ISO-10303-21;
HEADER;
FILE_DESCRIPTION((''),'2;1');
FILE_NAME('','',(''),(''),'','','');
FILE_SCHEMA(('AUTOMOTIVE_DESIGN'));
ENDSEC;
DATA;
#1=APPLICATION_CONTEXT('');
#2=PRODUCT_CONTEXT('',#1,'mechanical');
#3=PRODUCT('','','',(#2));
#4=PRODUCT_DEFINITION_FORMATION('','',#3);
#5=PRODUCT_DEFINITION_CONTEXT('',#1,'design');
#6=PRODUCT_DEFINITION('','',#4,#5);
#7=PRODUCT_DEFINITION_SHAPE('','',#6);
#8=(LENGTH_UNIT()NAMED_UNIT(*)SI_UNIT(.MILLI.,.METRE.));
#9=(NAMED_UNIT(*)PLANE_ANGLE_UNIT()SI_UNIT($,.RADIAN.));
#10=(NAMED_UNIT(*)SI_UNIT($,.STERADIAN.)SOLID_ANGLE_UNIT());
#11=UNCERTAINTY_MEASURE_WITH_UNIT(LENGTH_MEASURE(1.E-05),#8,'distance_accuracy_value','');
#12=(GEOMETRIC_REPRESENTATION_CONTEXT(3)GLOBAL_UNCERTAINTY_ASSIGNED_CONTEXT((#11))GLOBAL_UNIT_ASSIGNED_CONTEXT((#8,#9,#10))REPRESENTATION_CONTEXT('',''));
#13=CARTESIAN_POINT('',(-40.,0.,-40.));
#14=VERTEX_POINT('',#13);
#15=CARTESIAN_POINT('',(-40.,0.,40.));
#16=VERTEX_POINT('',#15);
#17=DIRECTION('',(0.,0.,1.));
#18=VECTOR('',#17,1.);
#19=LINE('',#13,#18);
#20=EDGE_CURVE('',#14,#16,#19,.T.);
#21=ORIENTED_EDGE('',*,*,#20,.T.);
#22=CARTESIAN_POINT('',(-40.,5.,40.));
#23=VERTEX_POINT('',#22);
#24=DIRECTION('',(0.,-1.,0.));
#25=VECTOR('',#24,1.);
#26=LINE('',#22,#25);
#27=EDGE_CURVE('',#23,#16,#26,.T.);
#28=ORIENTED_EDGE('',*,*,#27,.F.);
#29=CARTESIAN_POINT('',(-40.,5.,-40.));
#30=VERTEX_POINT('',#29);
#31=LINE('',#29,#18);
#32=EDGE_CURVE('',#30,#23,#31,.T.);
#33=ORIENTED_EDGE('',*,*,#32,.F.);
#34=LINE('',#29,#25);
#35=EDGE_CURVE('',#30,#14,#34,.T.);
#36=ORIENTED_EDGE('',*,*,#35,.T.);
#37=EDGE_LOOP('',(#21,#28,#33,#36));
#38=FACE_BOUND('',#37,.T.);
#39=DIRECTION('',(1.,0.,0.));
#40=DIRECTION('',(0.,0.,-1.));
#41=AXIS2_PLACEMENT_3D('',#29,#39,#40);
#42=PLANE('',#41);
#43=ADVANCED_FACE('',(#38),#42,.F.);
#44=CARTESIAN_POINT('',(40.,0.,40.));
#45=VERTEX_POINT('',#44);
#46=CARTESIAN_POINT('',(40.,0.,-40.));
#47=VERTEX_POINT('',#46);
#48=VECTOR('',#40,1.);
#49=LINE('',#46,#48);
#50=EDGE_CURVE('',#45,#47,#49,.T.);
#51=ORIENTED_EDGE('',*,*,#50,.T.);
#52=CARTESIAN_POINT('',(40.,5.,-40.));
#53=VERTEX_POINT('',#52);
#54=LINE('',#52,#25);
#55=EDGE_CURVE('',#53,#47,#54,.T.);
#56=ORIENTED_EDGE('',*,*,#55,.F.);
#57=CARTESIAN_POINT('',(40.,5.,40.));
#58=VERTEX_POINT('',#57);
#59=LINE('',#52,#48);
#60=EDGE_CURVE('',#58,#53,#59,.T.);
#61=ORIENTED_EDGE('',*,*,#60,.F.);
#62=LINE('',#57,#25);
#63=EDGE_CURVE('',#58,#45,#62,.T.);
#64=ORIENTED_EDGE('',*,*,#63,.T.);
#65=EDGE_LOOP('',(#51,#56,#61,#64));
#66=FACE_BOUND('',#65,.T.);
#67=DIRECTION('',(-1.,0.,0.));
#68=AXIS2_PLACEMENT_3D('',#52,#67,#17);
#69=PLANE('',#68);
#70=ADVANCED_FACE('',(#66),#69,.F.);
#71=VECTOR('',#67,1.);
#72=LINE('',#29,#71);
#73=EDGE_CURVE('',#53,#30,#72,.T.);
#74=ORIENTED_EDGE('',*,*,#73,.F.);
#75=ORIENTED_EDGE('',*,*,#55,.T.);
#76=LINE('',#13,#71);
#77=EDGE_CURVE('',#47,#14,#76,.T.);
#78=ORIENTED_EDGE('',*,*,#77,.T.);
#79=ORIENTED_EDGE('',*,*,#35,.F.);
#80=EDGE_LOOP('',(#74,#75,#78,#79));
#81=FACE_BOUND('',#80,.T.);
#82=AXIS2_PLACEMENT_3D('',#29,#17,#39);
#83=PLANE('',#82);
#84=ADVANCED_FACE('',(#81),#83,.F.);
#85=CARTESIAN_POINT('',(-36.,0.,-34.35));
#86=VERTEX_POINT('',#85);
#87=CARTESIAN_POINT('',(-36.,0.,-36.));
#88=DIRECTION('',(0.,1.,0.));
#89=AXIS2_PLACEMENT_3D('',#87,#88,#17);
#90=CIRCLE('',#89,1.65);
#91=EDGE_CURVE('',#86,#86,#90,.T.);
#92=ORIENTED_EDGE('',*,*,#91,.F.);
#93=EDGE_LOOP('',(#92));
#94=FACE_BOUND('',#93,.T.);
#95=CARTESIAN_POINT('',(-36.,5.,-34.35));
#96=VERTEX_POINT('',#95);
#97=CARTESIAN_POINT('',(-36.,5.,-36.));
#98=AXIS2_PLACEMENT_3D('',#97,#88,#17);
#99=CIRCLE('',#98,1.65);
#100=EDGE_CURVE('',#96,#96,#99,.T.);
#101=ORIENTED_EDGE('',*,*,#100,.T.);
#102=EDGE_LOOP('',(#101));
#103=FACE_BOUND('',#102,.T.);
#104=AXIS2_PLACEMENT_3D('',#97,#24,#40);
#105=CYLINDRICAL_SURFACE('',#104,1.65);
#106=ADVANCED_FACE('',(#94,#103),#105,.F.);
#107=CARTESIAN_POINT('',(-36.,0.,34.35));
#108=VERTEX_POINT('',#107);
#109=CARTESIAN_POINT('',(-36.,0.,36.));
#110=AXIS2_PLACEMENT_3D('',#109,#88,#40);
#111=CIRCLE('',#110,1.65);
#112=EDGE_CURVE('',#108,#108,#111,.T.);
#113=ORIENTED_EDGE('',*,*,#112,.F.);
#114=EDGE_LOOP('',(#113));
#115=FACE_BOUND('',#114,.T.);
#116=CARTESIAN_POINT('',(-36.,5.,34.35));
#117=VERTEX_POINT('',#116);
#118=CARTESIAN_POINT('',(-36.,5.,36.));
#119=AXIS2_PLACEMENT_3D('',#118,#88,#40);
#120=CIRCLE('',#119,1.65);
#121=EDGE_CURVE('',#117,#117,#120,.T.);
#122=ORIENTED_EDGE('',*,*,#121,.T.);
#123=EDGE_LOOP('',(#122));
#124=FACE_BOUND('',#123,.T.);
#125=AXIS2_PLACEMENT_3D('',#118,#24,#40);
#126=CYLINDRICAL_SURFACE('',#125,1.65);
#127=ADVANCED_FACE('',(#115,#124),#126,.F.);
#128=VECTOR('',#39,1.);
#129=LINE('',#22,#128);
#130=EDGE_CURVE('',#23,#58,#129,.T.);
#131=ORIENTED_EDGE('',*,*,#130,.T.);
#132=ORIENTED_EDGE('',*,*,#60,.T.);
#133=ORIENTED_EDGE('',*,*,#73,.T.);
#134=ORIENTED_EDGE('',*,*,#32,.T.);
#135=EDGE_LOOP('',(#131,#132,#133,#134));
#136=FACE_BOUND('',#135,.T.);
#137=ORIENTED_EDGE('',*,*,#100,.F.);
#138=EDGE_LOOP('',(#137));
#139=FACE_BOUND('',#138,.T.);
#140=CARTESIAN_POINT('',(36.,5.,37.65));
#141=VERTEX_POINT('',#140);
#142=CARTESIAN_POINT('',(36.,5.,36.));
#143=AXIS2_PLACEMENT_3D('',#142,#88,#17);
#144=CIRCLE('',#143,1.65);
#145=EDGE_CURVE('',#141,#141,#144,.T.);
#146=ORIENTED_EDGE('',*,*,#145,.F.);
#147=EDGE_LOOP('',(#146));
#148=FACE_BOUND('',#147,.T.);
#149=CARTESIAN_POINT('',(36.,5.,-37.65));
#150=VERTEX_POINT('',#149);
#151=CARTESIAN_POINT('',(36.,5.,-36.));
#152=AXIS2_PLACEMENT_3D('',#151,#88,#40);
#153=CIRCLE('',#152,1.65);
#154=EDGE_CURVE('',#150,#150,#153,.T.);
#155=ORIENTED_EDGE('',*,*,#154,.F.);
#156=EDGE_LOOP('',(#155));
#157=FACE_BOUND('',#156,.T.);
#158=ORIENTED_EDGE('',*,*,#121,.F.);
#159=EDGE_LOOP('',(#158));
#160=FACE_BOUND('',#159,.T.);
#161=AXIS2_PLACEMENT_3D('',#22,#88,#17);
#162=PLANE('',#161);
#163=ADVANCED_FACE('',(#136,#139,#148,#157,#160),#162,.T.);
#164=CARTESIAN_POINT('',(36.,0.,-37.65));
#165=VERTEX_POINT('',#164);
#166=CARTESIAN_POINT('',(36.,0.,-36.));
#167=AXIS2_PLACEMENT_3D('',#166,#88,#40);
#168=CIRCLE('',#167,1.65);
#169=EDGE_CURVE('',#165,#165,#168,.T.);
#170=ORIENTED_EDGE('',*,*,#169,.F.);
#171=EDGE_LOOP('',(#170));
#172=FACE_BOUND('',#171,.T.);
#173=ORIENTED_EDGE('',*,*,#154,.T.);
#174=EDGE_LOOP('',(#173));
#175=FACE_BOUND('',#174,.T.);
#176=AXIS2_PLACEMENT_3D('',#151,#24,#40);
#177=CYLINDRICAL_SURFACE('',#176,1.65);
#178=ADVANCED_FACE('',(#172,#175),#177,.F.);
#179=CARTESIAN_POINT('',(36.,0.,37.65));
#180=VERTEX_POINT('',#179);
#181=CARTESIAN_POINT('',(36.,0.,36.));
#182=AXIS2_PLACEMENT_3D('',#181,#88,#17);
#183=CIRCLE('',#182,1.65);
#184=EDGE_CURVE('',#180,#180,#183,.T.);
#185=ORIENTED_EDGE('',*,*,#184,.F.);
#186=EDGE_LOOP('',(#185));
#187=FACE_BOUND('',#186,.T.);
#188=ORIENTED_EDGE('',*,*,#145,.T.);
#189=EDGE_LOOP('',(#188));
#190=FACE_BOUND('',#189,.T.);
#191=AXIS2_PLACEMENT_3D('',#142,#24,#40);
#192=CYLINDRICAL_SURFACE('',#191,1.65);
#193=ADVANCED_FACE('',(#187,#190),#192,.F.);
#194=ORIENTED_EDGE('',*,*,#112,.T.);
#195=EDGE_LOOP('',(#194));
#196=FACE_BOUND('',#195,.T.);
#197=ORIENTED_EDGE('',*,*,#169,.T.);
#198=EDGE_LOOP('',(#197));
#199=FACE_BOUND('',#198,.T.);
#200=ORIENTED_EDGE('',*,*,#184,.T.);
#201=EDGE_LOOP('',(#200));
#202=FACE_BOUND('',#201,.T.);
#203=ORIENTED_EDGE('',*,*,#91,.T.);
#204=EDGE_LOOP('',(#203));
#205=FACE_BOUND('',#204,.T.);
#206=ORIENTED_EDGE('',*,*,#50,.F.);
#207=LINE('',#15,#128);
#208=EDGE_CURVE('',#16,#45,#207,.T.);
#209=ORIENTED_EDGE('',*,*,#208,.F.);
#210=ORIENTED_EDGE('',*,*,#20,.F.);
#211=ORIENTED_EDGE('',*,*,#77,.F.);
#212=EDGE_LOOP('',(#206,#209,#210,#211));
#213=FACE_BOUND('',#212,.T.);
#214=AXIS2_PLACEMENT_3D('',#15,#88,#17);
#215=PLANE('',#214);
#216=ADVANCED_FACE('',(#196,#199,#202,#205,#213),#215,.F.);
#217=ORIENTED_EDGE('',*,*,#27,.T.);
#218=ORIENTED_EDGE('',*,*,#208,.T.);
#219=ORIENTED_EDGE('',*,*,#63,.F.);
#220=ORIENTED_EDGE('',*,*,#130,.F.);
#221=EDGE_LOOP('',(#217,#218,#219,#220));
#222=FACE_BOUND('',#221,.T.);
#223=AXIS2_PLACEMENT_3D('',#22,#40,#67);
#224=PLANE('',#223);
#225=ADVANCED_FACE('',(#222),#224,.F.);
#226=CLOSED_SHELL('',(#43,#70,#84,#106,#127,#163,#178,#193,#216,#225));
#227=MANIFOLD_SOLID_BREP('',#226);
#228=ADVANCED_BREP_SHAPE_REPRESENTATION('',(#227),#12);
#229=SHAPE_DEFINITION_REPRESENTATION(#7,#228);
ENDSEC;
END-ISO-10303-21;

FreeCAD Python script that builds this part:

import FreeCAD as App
import Part
import Sketcher
Q = App.Units.Quantity

doc = App.newDocument("Part")
body = doc.addObject("PartDesign::Body", "Body")

sketch1 = body.newObject("Sketcher::SketchObject", "Sketch")
sketch1.AttachmentSupport = (doc.getObject("XZ_Plane"), [""])
sketch1.MapMode = "FlatFace"
sketch1.addGeometry(Part.LineSegment(App.Vector(-40, -40, 0), App.Vector(-40, 40, 0)), False)
sketch1.addGeometry(Part.LineSegment(App.Vector(-40, 40, 0), App.Vector(40, 40, 0)), False)
sketch1.addGeometry(Part.LineSegment(App.Vector(40, 40, 0), App.Vector(40, -40, 0)), False)
sketch1.addGeometry(Part.LineSegment(App.Vector(40, -40, 0), App.Vector(-40, -40, 0)), False)
sketch1.addGeometry(Part.Circle(App.Vector(-36, 36, 0), App.Vector(0, 0, 1), 1.65), False)
sketch1.addGeometry(Part.Circle(App.Vector(36, 36, 0), App.Vector(0, 0, 1), 1.65), False)
sketch1.addGeometry(Part.Circle(App.Vector(-36, -36, 0), App.Vector(0, 0, 1), 1.65), False)
sketch1.addGeometry(Part.Circle(App.Vector(36, -36, 0), App.Vector(0, 0, 1), 1.65), False)
sketch1.addConstraint(Sketcher.Constraint("Coincident", 0, 2, 1, 1))
sketch1.addConstraint(Sketcher.Constraint("Coincident", 1, 2, 2, 1))
sketch1.addConstraint(Sketcher.Constraint("Coincident", 2, 2, 3, 1))
sketch1.addConstraint(Sketcher.Constraint("Coincident", 3, 2, 0, 1))
sketch1.addConstraint(Sketcher.Constraint("Vertical", 0))
sketch1.addConstraint(Sketcher.Constraint("Horizontal", 1))
sketch1.addConstraint(Sketcher.Constraint("Vertical", 2))
sketch1.addConstraint(Sketcher.Constraint("Horizontal", 3))
sketch1.addConstraint(Sketcher.Constraint("Equal", 4, 5))
sketch1.addConstraint(Sketcher.Constraint("Equal", 5, 6))
sketch1.addConstraint(Sketcher.Constraint("Equal", 6, 7))
sketch1.addConstraint(Sketcher.Constraint("Symmetric", 5, 3, 6, 3, -1, 1))
sketch1.addConstraint(Sketcher.Constraint("Symmetric", 4, 3, 7, 3, -1, 1))
sketch1.addConstraint(Sketcher.Constraint("Symmetric", 0, 2, 2, 2, -1, 1))
sketch1.addConstraint(Sketcher.Constraint("Symmetric", 4, 3, 5, 3, -2))
sketch1.addConstraint(Sketcher.Constraint("Equal", 3, 0))
sketch1.addConstraint(Sketcher.Constraint("Diameter", 4, Q("3.3 mm")))
sketch1.addConstraint(Sketcher.Constraint("DistanceX", 1, 1, 1, 2, Q("80 mm")))
sketch1.addConstraint(Sketcher.Constraint("DistanceX", 4, 3, -1, 1, Q("36 mm")))
sketch1.addConstraint(Sketcher.Constraint("DistanceY", -1, 1, 4, 3, Q("36 mm")))
pad1 = body.newObject("PartDesign::Pad", "Pad")
pad1.Profile = sketch1
pad1.Length = 5
pad1.Reversed = True

doc.recompute()
